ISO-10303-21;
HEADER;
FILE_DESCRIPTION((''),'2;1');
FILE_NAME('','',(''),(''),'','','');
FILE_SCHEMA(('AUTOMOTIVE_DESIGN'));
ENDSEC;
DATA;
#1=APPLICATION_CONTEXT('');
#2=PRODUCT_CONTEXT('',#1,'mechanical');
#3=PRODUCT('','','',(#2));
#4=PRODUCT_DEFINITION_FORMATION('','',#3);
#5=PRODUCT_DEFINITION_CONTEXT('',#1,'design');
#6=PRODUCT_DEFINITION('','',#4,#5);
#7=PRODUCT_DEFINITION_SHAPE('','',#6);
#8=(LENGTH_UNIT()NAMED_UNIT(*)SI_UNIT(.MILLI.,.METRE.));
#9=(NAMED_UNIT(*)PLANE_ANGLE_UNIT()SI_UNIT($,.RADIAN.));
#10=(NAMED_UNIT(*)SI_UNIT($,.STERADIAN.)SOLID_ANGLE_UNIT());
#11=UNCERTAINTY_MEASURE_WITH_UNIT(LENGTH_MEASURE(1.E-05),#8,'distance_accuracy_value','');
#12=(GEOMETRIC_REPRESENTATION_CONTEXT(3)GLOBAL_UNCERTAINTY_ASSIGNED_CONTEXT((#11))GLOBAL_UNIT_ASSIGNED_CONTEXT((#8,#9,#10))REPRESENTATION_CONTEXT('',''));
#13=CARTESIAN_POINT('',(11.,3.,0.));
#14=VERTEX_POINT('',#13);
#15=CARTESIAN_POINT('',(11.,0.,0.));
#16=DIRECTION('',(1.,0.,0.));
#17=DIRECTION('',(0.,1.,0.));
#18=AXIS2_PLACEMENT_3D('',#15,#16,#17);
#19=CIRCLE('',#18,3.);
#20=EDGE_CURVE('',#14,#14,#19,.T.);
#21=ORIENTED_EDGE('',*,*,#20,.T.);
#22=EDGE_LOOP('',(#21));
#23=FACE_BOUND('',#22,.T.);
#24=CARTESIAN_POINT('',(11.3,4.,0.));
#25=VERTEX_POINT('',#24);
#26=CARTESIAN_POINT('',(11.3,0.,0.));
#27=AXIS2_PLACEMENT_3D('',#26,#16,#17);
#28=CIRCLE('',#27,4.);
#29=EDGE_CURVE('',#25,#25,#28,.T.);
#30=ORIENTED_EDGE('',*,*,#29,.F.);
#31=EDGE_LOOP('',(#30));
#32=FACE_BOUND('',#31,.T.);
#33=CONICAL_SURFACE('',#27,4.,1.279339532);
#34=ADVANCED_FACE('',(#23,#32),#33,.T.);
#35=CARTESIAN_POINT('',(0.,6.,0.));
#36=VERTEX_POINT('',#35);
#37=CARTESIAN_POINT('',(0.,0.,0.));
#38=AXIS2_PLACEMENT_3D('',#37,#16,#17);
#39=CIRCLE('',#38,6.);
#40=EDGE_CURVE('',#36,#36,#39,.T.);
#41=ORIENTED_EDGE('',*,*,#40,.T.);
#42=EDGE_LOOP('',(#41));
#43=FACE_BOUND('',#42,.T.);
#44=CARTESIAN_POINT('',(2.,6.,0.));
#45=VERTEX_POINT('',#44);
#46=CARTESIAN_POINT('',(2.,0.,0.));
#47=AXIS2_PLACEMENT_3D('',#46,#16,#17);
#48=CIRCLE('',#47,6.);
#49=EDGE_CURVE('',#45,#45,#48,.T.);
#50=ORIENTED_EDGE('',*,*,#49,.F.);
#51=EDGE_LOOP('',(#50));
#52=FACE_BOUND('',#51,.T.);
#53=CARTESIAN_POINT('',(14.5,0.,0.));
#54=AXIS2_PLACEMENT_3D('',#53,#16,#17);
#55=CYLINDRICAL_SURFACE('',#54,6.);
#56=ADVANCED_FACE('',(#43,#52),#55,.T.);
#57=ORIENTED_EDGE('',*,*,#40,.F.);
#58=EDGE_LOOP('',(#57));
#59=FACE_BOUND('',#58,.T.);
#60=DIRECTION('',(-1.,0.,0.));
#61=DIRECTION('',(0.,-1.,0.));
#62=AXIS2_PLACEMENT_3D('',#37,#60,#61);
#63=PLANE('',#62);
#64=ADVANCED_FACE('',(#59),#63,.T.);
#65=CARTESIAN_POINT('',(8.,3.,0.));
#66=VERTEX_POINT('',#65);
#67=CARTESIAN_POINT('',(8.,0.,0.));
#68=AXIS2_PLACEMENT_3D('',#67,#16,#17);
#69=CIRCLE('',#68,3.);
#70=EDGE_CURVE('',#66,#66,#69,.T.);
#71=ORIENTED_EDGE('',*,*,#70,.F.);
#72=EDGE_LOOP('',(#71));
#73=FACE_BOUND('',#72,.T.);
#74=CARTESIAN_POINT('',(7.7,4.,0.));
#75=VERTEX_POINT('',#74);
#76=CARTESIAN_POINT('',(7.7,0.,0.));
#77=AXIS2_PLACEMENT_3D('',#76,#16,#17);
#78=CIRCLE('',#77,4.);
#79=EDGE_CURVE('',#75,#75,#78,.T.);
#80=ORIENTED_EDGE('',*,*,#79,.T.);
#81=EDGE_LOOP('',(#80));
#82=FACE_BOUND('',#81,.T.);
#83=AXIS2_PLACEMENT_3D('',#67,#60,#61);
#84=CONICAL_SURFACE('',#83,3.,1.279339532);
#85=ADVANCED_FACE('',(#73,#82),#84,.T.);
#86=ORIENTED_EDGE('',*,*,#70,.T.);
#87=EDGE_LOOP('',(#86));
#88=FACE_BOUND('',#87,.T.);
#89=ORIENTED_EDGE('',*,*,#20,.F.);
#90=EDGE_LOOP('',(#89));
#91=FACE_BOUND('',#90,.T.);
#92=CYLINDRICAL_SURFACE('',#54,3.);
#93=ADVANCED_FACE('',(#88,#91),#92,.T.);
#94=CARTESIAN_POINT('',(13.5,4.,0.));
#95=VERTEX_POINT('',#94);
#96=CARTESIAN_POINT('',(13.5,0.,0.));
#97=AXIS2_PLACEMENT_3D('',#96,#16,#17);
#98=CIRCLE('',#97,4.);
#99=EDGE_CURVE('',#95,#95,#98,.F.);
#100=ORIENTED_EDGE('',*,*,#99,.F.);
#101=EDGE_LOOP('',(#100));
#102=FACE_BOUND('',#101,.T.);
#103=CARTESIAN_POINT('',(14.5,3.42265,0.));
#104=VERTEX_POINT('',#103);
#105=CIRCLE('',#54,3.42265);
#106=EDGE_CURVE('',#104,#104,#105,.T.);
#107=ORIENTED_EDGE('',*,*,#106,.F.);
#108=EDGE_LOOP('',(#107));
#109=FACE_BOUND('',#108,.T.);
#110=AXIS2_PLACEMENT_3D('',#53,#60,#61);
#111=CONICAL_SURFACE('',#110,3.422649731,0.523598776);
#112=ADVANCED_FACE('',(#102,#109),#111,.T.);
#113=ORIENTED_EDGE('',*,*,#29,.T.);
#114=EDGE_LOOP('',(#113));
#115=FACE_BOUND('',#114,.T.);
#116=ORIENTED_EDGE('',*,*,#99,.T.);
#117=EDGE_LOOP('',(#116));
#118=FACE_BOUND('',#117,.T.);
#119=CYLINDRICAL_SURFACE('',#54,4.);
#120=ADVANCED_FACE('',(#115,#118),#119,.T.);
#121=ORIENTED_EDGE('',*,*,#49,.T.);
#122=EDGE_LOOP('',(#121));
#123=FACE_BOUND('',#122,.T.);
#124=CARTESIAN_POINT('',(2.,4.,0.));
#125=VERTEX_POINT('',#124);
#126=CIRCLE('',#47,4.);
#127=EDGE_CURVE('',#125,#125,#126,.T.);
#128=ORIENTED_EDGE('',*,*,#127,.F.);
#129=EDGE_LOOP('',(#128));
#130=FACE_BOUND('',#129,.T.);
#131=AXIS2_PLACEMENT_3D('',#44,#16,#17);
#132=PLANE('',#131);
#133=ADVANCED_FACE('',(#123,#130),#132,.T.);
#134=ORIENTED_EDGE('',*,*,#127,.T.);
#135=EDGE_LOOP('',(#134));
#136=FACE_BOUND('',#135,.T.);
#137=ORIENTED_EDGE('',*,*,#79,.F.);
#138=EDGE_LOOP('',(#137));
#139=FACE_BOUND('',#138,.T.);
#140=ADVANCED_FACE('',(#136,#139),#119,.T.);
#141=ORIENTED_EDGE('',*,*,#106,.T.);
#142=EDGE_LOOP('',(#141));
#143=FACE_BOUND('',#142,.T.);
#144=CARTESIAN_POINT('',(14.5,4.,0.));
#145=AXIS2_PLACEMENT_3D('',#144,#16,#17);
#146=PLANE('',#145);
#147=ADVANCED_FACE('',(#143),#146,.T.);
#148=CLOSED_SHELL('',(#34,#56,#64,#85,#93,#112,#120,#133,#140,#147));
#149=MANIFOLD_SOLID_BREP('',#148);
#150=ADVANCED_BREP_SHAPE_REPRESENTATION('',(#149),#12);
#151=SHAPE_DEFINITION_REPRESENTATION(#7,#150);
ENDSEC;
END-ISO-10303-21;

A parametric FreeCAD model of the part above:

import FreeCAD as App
import Part
import Sketcher


def edges_at(feature, points):
    """Names of the edges that pass closest to the given points."""
    edges = feature.Shape.Edges
    near = lambda p: min(range(len(edges)), key=lambda i: edges[i].distToShape(Part.Vertex(*p))[0])
    return sorted({f"Edge{near(p) + 1}" for p in points})


def add_polygon(sketch, points):
    """Adds a closed chain of lines whose ends are joined by coincident constraints."""
    first, n = sketch.GeometryCount, len(points)
    for a, b in zip(points, points[1:] + points[:1]):
        sketch.addGeometry(Part.LineSegment(App.Vector(*a, 0), App.Vector(*b, 0)), False)
    for i in range(n):
        sketch.addConstraint(Sketcher.Constraint("Coincident", first + i, 2, first + (i + 1) % n, 1))

doc = App.newDocument("Part")
body = doc.addObject("PartDesign::Body", "Body")

sketch1 = body.newObject("Sketcher::SketchObject", "Sketch")
sketch1.AttachmentSupport = (doc.getObject("XY_Plane"), [""])
sketch1.MapMode = "FlatFace"
add_polygon(sketch1, [(0, 6), (0, 0), (14.5, 0), (14.5, 4), (11.3, 4), (11, 3), (8, 3), (7.7, 4), (2, 4), (2, 6)])
sketch1.addConstraint([
    Sketcher.Constraint("Vertical", 0),
    Sketcher.Constraint("Horizontal", 1),
    Sketcher.Constraint("Vertical", 2),
    Sketcher.Constraint("Horizontal", 3),
    Sketcher.Constraint("Horizontal", 5),
    Sketcher.Constraint("Horizontal", 7),
    Sketcher.Constraint("Vertical", 8),
    Sketcher.Constraint("Horizontal", 9),
    Sketcher.Constraint("Coincident", 0, 2, -1, 1),
    Sketcher.Constraint("Horizontal", 3, 2, 6, 2),
    Sketcher.Constraint("Equal", 9, 8),
    Sketcher.Constraint("Equal", 4, 6),
    Sketcher.Constraint("DistanceX", 5, 2, 5, 1, 3.0),
    Sketcher.Constraint("DistanceX", 9, 2, 9, 1, 2.0),
    Sketcher.Constraint("DistanceY", 0, 2, 0, 1, 6.0),
    Sketcher.Constraint("DistanceX", 1, 1, 1, 2, 14.5),
    Sketcher.Constraint("DistanceX", 3, 2, 3, 1, 3.2),
    Sketcher.Constraint("DistanceX", 7, 2, 7, 1, 5.7),
    Sketcher.Constraint("DistanceY", -1, 1, 4, 2, 3.0),
])
revolution = body.newObject("PartDesign::Revolution", "Revolution")
revolution.Profile = sketch1
revolution.ReferenceAxis = (sketch1, ["H_Axis"])
revolution.Angle = 360
doc.recompute()

chamfer = body.newObject("PartDesign::Chamfer", "Chamfer")
chamfer.Base = (revolution, edges_at(revolution, [(14.5, -4, 0)]))
chamfer.ChamferType = "Two distances"
chamfer.Size = 1
chamfer.Size2 = 0.57735
chamfer.FlipDirection = True

doc.recompute()
